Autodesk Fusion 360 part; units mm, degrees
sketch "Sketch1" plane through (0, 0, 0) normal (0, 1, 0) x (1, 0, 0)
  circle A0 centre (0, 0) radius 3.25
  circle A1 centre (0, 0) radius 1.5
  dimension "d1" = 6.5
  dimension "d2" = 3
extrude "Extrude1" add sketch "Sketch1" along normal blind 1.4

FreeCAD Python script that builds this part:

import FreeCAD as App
import Part
import Sketcher

V = App.Vector

doc = App.newDocument("Part")
params = doc.addObject("Spreadsheet::Sheet", "Params")
for row, (alias, value) in enumerate([
    ("sketch1_diameter", "3 mm"),
    ("sketch1_diameter2", "6.5 mm"),
    ("pad1_length", "1.4 mm"),
], start=1):
    params.set(f"A{row}", alias)
    params.set(f"B{row}", "=" + value)
    params.setAlias(f"B{row}", alias)

body = doc.addObject("PartDesign::Body", "Body")

# Sketch on XZ plane
sketch1 = doc.addObject("Sketcher::SketchObject", "Sketch")
body.addObject(sketch1)
sketch1.AttachmentSupport = (doc.XZ_Plane, [""])
sketch1.MapMode = "FlatFace"
sketch1.addGeometry(Part.Circle(V(0, 0, 0), V(0, 0, 1), 3.2), False)
sketch1.addGeometry(Part.Circle(V(0, 0, 0), V(0, 0, 1), 1.5), False)
sketch1.addConstraint(Sketcher.Constraint("Coincident", 0, 3, -1, 1))
sketch1.addConstraint(Sketcher.Constraint("Coincident", 1, 3, -1, 1))
sketch1.addConstraint(Sketcher.Constraint("Diameter", 1, 3.0))
sketch1.addConstraint(Sketcher.Constraint("Diameter", 0, 6.5))
sketch1.setExpression("Constraints[2]", "Params.sketch1_diameter")
sketch1.setExpression("Constraints[3]", "Params.sketch1_diameter2")
pad1 = doc.addObject("PartDesign::Pad", "Pad")
body.addObject(pad1)
pad1.Profile = sketch1
pad1.setExpression("Length", "Params.pad1_length")
pad1.Reversed = True

doc.recompute()
